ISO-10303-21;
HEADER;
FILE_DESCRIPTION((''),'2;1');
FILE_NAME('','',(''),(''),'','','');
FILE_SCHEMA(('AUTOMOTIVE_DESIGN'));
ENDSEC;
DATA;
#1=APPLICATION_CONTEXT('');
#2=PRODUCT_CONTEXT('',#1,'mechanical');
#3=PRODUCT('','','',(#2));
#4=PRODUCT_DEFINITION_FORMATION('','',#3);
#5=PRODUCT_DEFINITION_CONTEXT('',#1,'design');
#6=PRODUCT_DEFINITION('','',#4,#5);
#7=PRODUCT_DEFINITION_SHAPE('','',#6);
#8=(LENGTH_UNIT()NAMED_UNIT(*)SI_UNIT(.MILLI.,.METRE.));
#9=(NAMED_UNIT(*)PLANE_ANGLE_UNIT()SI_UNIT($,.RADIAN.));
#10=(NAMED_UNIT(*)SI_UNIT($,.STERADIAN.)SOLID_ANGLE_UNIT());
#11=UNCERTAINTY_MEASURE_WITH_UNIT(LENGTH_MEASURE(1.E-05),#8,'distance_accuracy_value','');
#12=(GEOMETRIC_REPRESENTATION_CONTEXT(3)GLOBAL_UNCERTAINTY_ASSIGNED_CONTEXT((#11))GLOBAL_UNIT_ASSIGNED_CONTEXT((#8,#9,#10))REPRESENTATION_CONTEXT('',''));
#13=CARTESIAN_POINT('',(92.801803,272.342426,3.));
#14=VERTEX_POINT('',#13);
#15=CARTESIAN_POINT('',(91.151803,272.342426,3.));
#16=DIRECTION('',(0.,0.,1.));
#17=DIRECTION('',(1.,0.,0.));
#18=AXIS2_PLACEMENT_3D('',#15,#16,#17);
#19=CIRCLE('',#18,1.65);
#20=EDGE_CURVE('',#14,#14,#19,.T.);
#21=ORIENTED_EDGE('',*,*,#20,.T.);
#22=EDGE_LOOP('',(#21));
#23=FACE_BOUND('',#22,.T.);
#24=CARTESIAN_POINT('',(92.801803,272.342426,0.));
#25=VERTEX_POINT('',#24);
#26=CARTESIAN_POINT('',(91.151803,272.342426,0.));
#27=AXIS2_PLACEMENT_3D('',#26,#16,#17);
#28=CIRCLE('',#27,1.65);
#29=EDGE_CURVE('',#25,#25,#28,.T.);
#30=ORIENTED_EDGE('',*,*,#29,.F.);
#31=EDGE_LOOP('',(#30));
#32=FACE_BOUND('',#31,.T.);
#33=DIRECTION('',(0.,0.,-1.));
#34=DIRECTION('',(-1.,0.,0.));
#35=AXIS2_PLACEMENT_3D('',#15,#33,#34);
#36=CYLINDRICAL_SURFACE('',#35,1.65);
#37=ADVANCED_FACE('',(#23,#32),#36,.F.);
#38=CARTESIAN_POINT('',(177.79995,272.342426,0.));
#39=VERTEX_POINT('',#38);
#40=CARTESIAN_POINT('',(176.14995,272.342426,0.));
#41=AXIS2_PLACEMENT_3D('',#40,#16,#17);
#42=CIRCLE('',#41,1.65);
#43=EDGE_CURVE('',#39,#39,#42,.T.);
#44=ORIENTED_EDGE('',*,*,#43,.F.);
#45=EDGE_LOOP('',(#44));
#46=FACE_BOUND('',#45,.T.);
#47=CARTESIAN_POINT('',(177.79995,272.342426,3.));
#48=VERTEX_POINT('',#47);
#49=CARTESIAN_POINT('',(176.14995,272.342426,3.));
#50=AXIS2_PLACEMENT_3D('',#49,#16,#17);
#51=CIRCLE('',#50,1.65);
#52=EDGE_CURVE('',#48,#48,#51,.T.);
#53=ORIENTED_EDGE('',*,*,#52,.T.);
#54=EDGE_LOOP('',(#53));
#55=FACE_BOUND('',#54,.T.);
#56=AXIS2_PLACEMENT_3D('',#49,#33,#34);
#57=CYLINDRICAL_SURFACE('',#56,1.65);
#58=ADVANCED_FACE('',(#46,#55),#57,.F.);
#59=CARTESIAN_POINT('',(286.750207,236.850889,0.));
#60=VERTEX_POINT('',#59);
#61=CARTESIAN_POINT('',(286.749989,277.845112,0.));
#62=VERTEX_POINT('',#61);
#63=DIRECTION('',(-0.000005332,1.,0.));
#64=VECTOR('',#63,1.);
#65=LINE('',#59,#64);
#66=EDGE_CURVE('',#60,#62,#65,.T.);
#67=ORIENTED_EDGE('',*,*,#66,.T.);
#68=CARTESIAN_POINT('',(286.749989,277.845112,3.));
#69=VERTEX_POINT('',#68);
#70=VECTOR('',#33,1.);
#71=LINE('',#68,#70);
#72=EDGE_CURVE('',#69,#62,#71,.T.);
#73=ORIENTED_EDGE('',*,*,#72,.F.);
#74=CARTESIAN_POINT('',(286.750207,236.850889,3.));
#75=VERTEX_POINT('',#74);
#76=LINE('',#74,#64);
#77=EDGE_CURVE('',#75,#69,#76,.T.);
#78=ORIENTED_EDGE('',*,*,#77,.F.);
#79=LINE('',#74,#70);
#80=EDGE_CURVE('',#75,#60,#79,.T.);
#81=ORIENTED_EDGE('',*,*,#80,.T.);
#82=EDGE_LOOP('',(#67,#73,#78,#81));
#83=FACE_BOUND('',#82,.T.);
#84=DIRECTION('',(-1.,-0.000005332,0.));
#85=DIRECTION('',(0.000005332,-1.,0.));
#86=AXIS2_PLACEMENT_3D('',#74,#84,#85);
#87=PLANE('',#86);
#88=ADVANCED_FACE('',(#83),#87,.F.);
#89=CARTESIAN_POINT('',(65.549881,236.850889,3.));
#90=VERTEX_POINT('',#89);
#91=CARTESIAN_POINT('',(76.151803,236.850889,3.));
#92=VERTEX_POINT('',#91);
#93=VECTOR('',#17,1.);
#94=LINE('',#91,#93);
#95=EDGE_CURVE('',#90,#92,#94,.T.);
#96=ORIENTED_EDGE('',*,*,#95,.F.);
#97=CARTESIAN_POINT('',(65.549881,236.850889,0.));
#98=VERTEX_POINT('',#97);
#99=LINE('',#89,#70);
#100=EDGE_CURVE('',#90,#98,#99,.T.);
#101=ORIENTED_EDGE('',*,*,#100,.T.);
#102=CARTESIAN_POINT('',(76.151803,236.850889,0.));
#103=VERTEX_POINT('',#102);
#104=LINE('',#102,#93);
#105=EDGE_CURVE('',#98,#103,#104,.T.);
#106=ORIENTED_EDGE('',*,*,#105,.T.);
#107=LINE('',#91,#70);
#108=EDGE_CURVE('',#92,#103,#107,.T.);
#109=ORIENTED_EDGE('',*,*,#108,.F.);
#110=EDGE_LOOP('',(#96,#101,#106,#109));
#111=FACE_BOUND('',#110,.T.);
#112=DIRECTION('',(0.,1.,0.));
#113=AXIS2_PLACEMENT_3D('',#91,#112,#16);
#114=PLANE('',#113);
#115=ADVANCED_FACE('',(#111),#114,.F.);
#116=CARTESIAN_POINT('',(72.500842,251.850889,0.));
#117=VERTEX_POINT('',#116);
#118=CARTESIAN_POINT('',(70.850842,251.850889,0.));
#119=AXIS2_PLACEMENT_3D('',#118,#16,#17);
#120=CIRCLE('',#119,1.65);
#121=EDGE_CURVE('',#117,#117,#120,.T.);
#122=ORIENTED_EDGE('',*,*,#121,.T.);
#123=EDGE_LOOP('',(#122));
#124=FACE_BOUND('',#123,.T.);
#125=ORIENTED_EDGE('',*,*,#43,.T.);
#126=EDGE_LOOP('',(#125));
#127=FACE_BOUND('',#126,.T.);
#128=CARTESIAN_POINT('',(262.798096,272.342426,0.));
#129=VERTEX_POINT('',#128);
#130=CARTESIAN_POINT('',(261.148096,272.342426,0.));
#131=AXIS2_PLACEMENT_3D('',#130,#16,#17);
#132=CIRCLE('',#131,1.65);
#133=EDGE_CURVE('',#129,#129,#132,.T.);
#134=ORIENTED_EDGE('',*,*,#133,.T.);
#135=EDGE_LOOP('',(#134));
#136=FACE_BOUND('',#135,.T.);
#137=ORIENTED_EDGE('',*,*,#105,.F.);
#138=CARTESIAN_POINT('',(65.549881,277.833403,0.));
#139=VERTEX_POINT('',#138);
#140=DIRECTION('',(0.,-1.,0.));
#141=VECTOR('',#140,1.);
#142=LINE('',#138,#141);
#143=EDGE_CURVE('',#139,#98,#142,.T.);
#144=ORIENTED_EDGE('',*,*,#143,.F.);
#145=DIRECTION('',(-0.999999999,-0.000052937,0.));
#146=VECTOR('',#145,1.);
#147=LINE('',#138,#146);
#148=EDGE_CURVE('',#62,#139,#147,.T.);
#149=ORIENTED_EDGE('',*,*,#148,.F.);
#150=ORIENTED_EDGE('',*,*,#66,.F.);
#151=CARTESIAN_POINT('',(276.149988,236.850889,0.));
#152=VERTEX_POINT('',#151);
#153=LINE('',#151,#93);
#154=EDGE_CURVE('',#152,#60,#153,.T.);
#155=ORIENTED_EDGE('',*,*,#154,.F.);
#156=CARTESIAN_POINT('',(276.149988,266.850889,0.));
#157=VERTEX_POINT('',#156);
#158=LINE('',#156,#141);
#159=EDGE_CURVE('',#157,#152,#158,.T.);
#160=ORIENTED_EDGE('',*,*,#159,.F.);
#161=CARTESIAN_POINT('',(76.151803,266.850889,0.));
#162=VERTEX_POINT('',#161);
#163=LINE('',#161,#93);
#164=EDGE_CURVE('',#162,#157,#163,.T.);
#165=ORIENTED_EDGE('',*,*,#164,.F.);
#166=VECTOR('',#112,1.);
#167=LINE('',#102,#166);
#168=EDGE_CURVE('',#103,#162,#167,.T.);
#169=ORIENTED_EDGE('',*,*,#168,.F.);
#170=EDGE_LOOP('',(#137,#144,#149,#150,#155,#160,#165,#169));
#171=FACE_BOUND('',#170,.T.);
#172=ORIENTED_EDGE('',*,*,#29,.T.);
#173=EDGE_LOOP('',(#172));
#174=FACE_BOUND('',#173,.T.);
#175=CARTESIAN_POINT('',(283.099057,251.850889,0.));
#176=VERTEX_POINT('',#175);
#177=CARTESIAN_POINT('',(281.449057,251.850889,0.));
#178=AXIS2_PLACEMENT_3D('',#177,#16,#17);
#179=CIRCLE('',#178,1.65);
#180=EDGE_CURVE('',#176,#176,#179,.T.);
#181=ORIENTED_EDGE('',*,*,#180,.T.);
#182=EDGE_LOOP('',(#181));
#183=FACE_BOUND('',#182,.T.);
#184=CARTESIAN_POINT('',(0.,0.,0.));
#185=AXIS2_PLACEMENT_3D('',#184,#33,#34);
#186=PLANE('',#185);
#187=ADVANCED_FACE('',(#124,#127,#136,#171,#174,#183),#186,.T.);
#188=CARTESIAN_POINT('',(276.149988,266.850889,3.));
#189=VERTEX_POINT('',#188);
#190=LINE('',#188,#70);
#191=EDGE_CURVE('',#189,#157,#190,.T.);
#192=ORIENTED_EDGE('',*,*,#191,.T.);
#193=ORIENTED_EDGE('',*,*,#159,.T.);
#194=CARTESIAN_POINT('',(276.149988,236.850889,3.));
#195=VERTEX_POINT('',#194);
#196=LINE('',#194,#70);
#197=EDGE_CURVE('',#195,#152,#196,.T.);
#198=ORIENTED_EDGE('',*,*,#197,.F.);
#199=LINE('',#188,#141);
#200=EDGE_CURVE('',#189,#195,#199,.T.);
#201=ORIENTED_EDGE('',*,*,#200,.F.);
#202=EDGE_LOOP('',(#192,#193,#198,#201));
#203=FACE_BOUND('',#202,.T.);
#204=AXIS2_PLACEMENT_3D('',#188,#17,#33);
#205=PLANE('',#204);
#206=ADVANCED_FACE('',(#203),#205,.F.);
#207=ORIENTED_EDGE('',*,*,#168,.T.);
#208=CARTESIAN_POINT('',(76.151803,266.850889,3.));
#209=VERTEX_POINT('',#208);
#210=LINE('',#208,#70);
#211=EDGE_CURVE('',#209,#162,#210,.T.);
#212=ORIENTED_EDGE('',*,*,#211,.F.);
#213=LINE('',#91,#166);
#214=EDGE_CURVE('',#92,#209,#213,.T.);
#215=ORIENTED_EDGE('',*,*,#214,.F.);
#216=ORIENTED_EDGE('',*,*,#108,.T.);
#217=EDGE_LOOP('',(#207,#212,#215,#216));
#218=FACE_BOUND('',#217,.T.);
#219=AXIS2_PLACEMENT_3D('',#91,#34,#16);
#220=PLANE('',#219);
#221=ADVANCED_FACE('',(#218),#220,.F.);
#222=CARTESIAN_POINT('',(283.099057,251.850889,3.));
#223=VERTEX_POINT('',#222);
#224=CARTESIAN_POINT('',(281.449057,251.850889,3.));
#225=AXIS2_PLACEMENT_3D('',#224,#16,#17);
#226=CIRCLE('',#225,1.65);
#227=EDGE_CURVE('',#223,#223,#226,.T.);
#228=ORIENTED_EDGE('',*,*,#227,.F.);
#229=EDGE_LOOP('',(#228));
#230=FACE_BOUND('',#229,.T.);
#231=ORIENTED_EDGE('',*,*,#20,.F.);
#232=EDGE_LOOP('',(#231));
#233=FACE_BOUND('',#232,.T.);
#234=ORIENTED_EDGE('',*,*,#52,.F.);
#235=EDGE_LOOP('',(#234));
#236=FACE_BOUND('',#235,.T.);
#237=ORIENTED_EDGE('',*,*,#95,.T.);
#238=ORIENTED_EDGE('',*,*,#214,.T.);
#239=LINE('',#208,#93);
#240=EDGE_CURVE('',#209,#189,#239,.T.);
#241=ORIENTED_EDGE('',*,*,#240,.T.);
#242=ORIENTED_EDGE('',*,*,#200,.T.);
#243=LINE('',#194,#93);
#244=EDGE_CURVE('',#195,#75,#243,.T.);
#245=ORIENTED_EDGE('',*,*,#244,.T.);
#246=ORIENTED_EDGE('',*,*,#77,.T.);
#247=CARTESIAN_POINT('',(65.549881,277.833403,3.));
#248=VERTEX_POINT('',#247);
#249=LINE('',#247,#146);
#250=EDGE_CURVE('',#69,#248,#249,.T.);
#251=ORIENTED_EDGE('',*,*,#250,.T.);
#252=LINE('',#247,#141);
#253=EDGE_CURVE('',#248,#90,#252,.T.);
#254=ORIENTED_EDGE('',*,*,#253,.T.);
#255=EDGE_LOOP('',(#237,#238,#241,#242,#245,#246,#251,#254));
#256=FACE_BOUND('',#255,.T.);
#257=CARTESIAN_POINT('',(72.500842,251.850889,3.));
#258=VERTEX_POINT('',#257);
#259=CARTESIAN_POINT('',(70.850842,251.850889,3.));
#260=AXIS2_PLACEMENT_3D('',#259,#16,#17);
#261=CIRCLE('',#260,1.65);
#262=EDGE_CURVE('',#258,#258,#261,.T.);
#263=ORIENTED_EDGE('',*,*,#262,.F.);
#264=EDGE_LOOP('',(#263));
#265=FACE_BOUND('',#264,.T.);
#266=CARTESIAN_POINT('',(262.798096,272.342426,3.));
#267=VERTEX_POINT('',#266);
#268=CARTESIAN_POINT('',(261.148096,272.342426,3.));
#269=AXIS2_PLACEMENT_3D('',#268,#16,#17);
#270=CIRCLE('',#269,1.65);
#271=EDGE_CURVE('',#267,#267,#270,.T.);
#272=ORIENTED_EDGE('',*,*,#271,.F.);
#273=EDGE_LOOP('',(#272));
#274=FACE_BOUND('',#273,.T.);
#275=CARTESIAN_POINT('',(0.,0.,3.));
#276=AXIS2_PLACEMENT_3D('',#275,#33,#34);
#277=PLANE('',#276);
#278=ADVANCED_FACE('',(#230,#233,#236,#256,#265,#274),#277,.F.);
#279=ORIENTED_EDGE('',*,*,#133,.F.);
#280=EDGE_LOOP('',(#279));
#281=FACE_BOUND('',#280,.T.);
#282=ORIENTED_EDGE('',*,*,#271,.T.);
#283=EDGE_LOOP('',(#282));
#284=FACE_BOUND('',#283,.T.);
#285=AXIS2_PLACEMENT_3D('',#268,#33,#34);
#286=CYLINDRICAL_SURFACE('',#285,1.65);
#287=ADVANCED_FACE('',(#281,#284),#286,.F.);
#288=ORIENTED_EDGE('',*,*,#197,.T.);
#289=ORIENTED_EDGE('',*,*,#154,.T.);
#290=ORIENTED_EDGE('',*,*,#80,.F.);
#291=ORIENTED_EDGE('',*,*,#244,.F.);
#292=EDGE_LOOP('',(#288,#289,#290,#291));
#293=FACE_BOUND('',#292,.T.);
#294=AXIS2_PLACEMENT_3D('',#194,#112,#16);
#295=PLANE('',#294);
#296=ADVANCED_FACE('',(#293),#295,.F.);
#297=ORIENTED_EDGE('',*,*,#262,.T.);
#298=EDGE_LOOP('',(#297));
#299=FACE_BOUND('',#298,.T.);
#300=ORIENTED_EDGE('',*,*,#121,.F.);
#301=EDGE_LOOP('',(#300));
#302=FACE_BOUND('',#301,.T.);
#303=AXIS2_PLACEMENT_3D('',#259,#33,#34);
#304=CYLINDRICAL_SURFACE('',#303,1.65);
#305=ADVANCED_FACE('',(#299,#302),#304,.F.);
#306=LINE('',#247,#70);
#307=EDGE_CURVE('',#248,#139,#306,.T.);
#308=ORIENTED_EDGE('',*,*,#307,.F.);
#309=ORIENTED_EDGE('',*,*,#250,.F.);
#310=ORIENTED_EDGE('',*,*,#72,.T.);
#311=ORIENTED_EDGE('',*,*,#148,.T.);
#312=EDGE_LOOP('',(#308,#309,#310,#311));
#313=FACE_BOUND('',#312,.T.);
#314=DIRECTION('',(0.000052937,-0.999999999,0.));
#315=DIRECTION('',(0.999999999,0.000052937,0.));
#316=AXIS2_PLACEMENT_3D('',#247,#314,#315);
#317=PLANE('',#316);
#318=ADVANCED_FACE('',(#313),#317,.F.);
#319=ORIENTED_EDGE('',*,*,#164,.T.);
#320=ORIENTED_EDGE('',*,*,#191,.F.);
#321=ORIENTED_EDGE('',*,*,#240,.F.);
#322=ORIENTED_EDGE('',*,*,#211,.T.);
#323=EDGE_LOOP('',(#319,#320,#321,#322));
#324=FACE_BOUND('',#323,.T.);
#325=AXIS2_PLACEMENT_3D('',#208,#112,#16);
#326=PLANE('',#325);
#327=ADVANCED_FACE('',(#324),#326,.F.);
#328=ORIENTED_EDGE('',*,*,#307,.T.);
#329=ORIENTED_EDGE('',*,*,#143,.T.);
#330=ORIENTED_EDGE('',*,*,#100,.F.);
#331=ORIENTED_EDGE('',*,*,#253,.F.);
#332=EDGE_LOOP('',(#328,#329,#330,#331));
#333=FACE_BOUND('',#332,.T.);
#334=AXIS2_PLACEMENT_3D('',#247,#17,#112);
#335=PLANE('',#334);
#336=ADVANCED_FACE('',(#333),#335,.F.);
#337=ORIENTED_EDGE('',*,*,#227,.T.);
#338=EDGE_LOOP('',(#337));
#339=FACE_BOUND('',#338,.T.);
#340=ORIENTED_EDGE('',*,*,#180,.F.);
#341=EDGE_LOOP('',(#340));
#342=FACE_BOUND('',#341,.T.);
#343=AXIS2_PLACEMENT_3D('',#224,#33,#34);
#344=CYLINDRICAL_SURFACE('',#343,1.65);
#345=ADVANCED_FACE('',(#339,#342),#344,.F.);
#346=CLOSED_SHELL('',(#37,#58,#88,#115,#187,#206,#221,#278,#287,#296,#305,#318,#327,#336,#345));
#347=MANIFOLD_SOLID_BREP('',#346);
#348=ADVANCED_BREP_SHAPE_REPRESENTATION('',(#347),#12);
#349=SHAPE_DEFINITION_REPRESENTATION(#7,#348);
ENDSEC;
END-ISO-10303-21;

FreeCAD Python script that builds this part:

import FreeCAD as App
import Part
import Sketcher
Q = App.Units.Quantity


def add_polygon(sketch, points):
    """Adds a closed chain of lines whose ends are joined by coincident constraints."""
    first, n = sketch.GeometryCount, len(points)
    for a, b in zip(points, points[1:] + points[:1]):
        sketch.addGeometry(Part.LineSegment(App.Vector(*a, 0), App.Vector(*b, 0)), False)
    for i in range(n):
        sketch.addConstraint(Sketcher.Constraint("Coincident", first + i, 2, first + (i + 1) % n, 1))

doc = App.newDocument("Part")
params = doc.addObject("Spreadsheet::Sheet", "Params")
for row, (alias, value) in enumerate([
    ("sketch1_diameter", "3.3 mm"),
    ("sketch1_height", "30 mm"),
    ("pad1_length", "3 mm"),
], start=1):
    params.set(f"A{row}", alias)
    params.set(f"B{row}", "=" + value)
    params.setAlias(f"B{row}", alias)

body = doc.addObject("PartDesign::Body", "Body")

# Sketch on XY plane
sketch1 = doc.addObject("Sketcher::SketchObject", "Sketch")
body.addObject(sketch1)
sketch1.AttachmentSupport = (doc.XY_Plane, [""])
sketch1.MapMode = "FlatFace"
add_polygon(sketch1, [(65.549881, 236.850889), (76.151803, 236.850889), (76.151803, 266.850889), (276.149988, 266.850889), (276.149988, 236.850889), (286.750207, 236.850889), (286.749989, 277.845112), (65.549881, 277.833403)])  # lines 0-7
sketch1.addGeometry(Part.Circle(App.Vector(281.449057, 251.850889, 0), App.Vector(0, 0, 1), 1.65), False)  # 8
sketch1.addGeometry(Part.Circle(App.Vector(70.850842, 251.850889, 0), App.Vector(0, 0, 1), 1.65), False)  # 9
sketch1.addGeometry(Part.Circle(App.Vector(261.148096, 272.342426, 0), App.Vector(0, 0, 1), 1.65), False)  # 10
sketch1.addGeometry(Part.Circle(App.Vector(176.14995, 272.342426, 0), App.Vector(0, 0, 1), 1.65), False)  # 11
sketch1.addGeometry(Part.Circle(App.Vector(91.151803, 272.342426, 0), App.Vector(0, 0, 1), 1.65), False)  # 12
sketch1.addConstraint(Sketcher.Constraint("Horizontal", 0))
sketch1.addConstraint(Sketcher.Constraint("Vertical", 1))
sketch1.addConstraint(Sketcher.Constraint("Horizontal", 2))
sketch1.addConstraint(Sketcher.Constraint("Vertical", 3))
sketch1.addConstraint(Sketcher.Constraint("Horizontal", 4))
sketch1.addConstraint(Sketcher.Constraint("Vertical", 7))
sketch1.addConstraint(Sketcher.Constraint("Equal", 8, 9))
sketch1.addConstraint(Sketcher.Constraint("Equal", 9, 10))
sketch1.addConstraint(Sketcher.Constraint("Equal", 10, 11))
sketch1.addConstraint(Sketcher.Constraint("Equal", 11, 12))
sketch1.addConstraint(Sketcher.Constraint("Horizontal", 8, 3, 9, 3))
sketch1.addConstraint(Sketcher.Constraint("Horizontal", 10, 3, 11, 3))
sketch1.addConstraint(Sketcher.Constraint("Horizontal", 11, 3, 12, 3))
sketch1.addConstraint(Sketcher.Constraint("Horizontal", 0, 2, 3, 2))
sketch1.addConstraint(Sketcher.Constraint("Diameter", 8, Q("3.3 mm")))
sketch1.addConstraint(Sketcher.Constraint("DistanceY", 1, 1, 1, 2, Q("30 mm")))
sketch1.addConstraint(Sketcher.Constraint("DistanceY", 0, 2, 9, 3, Q("15 mm")))
sketch1.addConstraint(Sketcher.Constraint("DistanceX", 0, 2, 12, 3, Q("15 mm")))
sketch1.addConstraint(Sketcher.Constraint("DistanceX", 2, 2, 5, 2, Q("10.600001 mm")))
sketch1.addConstraint(Sketcher.Constraint("DistanceX", 4, 1, 4, 2, Q("10.600219 mm")))
sketch1.addConstraint(Sketcher.Constraint("Distance", 6, Q("221.200108 mm")))
sketch1.addConstraint(Sketcher.Constraint("DistanceX", 0, 1, 0, 2, Q("10.601922 mm")))
sketch1.addConstraint(Sketcher.Constraint("DistanceY", 7, 2, 7, 1, Q("40.982514 mm")))
sketch1.addConstraint(Sketcher.Constraint("DistanceY", -1, 1, 8, 3, Q("251.850889 mm")))
sketch1.addConstraint(Sketcher.Constraint("DistanceX", -1, 1, 11, 3, Q("176.14995 mm")))
sketch1.addConstraint(Sketcher.Constraint("DistanceX", -1, 1, 2, 2, Q("276.149988 mm")))
sketch1.addConstraint(Sketcher.Constraint("DistanceX", 10, 3, 8, 3, Q("20.300961 mm")))
sketch1.addConstraint(Sketcher.Constraint("DistanceX", 9, 3, 12, 3, Q("20.300961 mm")))
sketch1.addConstraint(Sketcher.Constraint("DistanceX", 2, 2, 8, 3, Q("5.299069 mm")))
sketch1.addConstraint(Sketcher.Constraint("Distance", 5, Q("40.994223 mm")))
sketch1.addConstraint(Sketcher.Constraint("DistanceY", -1, 1, 10, 3, Q("272.342426 mm")))
sketch1.setExpression("Constraints[22]", "Params.sketch1_diameter")
sketch1.setExpression("Constraints[23]", "Params.sketch1_height")
pad1 = doc.addObject("PartDesign::Pad", "Pad")
body.addObject(pad1)
pad1.Profile = sketch1
pad1.setExpression("Length", "Params.pad1_length")

doc.recompute()
